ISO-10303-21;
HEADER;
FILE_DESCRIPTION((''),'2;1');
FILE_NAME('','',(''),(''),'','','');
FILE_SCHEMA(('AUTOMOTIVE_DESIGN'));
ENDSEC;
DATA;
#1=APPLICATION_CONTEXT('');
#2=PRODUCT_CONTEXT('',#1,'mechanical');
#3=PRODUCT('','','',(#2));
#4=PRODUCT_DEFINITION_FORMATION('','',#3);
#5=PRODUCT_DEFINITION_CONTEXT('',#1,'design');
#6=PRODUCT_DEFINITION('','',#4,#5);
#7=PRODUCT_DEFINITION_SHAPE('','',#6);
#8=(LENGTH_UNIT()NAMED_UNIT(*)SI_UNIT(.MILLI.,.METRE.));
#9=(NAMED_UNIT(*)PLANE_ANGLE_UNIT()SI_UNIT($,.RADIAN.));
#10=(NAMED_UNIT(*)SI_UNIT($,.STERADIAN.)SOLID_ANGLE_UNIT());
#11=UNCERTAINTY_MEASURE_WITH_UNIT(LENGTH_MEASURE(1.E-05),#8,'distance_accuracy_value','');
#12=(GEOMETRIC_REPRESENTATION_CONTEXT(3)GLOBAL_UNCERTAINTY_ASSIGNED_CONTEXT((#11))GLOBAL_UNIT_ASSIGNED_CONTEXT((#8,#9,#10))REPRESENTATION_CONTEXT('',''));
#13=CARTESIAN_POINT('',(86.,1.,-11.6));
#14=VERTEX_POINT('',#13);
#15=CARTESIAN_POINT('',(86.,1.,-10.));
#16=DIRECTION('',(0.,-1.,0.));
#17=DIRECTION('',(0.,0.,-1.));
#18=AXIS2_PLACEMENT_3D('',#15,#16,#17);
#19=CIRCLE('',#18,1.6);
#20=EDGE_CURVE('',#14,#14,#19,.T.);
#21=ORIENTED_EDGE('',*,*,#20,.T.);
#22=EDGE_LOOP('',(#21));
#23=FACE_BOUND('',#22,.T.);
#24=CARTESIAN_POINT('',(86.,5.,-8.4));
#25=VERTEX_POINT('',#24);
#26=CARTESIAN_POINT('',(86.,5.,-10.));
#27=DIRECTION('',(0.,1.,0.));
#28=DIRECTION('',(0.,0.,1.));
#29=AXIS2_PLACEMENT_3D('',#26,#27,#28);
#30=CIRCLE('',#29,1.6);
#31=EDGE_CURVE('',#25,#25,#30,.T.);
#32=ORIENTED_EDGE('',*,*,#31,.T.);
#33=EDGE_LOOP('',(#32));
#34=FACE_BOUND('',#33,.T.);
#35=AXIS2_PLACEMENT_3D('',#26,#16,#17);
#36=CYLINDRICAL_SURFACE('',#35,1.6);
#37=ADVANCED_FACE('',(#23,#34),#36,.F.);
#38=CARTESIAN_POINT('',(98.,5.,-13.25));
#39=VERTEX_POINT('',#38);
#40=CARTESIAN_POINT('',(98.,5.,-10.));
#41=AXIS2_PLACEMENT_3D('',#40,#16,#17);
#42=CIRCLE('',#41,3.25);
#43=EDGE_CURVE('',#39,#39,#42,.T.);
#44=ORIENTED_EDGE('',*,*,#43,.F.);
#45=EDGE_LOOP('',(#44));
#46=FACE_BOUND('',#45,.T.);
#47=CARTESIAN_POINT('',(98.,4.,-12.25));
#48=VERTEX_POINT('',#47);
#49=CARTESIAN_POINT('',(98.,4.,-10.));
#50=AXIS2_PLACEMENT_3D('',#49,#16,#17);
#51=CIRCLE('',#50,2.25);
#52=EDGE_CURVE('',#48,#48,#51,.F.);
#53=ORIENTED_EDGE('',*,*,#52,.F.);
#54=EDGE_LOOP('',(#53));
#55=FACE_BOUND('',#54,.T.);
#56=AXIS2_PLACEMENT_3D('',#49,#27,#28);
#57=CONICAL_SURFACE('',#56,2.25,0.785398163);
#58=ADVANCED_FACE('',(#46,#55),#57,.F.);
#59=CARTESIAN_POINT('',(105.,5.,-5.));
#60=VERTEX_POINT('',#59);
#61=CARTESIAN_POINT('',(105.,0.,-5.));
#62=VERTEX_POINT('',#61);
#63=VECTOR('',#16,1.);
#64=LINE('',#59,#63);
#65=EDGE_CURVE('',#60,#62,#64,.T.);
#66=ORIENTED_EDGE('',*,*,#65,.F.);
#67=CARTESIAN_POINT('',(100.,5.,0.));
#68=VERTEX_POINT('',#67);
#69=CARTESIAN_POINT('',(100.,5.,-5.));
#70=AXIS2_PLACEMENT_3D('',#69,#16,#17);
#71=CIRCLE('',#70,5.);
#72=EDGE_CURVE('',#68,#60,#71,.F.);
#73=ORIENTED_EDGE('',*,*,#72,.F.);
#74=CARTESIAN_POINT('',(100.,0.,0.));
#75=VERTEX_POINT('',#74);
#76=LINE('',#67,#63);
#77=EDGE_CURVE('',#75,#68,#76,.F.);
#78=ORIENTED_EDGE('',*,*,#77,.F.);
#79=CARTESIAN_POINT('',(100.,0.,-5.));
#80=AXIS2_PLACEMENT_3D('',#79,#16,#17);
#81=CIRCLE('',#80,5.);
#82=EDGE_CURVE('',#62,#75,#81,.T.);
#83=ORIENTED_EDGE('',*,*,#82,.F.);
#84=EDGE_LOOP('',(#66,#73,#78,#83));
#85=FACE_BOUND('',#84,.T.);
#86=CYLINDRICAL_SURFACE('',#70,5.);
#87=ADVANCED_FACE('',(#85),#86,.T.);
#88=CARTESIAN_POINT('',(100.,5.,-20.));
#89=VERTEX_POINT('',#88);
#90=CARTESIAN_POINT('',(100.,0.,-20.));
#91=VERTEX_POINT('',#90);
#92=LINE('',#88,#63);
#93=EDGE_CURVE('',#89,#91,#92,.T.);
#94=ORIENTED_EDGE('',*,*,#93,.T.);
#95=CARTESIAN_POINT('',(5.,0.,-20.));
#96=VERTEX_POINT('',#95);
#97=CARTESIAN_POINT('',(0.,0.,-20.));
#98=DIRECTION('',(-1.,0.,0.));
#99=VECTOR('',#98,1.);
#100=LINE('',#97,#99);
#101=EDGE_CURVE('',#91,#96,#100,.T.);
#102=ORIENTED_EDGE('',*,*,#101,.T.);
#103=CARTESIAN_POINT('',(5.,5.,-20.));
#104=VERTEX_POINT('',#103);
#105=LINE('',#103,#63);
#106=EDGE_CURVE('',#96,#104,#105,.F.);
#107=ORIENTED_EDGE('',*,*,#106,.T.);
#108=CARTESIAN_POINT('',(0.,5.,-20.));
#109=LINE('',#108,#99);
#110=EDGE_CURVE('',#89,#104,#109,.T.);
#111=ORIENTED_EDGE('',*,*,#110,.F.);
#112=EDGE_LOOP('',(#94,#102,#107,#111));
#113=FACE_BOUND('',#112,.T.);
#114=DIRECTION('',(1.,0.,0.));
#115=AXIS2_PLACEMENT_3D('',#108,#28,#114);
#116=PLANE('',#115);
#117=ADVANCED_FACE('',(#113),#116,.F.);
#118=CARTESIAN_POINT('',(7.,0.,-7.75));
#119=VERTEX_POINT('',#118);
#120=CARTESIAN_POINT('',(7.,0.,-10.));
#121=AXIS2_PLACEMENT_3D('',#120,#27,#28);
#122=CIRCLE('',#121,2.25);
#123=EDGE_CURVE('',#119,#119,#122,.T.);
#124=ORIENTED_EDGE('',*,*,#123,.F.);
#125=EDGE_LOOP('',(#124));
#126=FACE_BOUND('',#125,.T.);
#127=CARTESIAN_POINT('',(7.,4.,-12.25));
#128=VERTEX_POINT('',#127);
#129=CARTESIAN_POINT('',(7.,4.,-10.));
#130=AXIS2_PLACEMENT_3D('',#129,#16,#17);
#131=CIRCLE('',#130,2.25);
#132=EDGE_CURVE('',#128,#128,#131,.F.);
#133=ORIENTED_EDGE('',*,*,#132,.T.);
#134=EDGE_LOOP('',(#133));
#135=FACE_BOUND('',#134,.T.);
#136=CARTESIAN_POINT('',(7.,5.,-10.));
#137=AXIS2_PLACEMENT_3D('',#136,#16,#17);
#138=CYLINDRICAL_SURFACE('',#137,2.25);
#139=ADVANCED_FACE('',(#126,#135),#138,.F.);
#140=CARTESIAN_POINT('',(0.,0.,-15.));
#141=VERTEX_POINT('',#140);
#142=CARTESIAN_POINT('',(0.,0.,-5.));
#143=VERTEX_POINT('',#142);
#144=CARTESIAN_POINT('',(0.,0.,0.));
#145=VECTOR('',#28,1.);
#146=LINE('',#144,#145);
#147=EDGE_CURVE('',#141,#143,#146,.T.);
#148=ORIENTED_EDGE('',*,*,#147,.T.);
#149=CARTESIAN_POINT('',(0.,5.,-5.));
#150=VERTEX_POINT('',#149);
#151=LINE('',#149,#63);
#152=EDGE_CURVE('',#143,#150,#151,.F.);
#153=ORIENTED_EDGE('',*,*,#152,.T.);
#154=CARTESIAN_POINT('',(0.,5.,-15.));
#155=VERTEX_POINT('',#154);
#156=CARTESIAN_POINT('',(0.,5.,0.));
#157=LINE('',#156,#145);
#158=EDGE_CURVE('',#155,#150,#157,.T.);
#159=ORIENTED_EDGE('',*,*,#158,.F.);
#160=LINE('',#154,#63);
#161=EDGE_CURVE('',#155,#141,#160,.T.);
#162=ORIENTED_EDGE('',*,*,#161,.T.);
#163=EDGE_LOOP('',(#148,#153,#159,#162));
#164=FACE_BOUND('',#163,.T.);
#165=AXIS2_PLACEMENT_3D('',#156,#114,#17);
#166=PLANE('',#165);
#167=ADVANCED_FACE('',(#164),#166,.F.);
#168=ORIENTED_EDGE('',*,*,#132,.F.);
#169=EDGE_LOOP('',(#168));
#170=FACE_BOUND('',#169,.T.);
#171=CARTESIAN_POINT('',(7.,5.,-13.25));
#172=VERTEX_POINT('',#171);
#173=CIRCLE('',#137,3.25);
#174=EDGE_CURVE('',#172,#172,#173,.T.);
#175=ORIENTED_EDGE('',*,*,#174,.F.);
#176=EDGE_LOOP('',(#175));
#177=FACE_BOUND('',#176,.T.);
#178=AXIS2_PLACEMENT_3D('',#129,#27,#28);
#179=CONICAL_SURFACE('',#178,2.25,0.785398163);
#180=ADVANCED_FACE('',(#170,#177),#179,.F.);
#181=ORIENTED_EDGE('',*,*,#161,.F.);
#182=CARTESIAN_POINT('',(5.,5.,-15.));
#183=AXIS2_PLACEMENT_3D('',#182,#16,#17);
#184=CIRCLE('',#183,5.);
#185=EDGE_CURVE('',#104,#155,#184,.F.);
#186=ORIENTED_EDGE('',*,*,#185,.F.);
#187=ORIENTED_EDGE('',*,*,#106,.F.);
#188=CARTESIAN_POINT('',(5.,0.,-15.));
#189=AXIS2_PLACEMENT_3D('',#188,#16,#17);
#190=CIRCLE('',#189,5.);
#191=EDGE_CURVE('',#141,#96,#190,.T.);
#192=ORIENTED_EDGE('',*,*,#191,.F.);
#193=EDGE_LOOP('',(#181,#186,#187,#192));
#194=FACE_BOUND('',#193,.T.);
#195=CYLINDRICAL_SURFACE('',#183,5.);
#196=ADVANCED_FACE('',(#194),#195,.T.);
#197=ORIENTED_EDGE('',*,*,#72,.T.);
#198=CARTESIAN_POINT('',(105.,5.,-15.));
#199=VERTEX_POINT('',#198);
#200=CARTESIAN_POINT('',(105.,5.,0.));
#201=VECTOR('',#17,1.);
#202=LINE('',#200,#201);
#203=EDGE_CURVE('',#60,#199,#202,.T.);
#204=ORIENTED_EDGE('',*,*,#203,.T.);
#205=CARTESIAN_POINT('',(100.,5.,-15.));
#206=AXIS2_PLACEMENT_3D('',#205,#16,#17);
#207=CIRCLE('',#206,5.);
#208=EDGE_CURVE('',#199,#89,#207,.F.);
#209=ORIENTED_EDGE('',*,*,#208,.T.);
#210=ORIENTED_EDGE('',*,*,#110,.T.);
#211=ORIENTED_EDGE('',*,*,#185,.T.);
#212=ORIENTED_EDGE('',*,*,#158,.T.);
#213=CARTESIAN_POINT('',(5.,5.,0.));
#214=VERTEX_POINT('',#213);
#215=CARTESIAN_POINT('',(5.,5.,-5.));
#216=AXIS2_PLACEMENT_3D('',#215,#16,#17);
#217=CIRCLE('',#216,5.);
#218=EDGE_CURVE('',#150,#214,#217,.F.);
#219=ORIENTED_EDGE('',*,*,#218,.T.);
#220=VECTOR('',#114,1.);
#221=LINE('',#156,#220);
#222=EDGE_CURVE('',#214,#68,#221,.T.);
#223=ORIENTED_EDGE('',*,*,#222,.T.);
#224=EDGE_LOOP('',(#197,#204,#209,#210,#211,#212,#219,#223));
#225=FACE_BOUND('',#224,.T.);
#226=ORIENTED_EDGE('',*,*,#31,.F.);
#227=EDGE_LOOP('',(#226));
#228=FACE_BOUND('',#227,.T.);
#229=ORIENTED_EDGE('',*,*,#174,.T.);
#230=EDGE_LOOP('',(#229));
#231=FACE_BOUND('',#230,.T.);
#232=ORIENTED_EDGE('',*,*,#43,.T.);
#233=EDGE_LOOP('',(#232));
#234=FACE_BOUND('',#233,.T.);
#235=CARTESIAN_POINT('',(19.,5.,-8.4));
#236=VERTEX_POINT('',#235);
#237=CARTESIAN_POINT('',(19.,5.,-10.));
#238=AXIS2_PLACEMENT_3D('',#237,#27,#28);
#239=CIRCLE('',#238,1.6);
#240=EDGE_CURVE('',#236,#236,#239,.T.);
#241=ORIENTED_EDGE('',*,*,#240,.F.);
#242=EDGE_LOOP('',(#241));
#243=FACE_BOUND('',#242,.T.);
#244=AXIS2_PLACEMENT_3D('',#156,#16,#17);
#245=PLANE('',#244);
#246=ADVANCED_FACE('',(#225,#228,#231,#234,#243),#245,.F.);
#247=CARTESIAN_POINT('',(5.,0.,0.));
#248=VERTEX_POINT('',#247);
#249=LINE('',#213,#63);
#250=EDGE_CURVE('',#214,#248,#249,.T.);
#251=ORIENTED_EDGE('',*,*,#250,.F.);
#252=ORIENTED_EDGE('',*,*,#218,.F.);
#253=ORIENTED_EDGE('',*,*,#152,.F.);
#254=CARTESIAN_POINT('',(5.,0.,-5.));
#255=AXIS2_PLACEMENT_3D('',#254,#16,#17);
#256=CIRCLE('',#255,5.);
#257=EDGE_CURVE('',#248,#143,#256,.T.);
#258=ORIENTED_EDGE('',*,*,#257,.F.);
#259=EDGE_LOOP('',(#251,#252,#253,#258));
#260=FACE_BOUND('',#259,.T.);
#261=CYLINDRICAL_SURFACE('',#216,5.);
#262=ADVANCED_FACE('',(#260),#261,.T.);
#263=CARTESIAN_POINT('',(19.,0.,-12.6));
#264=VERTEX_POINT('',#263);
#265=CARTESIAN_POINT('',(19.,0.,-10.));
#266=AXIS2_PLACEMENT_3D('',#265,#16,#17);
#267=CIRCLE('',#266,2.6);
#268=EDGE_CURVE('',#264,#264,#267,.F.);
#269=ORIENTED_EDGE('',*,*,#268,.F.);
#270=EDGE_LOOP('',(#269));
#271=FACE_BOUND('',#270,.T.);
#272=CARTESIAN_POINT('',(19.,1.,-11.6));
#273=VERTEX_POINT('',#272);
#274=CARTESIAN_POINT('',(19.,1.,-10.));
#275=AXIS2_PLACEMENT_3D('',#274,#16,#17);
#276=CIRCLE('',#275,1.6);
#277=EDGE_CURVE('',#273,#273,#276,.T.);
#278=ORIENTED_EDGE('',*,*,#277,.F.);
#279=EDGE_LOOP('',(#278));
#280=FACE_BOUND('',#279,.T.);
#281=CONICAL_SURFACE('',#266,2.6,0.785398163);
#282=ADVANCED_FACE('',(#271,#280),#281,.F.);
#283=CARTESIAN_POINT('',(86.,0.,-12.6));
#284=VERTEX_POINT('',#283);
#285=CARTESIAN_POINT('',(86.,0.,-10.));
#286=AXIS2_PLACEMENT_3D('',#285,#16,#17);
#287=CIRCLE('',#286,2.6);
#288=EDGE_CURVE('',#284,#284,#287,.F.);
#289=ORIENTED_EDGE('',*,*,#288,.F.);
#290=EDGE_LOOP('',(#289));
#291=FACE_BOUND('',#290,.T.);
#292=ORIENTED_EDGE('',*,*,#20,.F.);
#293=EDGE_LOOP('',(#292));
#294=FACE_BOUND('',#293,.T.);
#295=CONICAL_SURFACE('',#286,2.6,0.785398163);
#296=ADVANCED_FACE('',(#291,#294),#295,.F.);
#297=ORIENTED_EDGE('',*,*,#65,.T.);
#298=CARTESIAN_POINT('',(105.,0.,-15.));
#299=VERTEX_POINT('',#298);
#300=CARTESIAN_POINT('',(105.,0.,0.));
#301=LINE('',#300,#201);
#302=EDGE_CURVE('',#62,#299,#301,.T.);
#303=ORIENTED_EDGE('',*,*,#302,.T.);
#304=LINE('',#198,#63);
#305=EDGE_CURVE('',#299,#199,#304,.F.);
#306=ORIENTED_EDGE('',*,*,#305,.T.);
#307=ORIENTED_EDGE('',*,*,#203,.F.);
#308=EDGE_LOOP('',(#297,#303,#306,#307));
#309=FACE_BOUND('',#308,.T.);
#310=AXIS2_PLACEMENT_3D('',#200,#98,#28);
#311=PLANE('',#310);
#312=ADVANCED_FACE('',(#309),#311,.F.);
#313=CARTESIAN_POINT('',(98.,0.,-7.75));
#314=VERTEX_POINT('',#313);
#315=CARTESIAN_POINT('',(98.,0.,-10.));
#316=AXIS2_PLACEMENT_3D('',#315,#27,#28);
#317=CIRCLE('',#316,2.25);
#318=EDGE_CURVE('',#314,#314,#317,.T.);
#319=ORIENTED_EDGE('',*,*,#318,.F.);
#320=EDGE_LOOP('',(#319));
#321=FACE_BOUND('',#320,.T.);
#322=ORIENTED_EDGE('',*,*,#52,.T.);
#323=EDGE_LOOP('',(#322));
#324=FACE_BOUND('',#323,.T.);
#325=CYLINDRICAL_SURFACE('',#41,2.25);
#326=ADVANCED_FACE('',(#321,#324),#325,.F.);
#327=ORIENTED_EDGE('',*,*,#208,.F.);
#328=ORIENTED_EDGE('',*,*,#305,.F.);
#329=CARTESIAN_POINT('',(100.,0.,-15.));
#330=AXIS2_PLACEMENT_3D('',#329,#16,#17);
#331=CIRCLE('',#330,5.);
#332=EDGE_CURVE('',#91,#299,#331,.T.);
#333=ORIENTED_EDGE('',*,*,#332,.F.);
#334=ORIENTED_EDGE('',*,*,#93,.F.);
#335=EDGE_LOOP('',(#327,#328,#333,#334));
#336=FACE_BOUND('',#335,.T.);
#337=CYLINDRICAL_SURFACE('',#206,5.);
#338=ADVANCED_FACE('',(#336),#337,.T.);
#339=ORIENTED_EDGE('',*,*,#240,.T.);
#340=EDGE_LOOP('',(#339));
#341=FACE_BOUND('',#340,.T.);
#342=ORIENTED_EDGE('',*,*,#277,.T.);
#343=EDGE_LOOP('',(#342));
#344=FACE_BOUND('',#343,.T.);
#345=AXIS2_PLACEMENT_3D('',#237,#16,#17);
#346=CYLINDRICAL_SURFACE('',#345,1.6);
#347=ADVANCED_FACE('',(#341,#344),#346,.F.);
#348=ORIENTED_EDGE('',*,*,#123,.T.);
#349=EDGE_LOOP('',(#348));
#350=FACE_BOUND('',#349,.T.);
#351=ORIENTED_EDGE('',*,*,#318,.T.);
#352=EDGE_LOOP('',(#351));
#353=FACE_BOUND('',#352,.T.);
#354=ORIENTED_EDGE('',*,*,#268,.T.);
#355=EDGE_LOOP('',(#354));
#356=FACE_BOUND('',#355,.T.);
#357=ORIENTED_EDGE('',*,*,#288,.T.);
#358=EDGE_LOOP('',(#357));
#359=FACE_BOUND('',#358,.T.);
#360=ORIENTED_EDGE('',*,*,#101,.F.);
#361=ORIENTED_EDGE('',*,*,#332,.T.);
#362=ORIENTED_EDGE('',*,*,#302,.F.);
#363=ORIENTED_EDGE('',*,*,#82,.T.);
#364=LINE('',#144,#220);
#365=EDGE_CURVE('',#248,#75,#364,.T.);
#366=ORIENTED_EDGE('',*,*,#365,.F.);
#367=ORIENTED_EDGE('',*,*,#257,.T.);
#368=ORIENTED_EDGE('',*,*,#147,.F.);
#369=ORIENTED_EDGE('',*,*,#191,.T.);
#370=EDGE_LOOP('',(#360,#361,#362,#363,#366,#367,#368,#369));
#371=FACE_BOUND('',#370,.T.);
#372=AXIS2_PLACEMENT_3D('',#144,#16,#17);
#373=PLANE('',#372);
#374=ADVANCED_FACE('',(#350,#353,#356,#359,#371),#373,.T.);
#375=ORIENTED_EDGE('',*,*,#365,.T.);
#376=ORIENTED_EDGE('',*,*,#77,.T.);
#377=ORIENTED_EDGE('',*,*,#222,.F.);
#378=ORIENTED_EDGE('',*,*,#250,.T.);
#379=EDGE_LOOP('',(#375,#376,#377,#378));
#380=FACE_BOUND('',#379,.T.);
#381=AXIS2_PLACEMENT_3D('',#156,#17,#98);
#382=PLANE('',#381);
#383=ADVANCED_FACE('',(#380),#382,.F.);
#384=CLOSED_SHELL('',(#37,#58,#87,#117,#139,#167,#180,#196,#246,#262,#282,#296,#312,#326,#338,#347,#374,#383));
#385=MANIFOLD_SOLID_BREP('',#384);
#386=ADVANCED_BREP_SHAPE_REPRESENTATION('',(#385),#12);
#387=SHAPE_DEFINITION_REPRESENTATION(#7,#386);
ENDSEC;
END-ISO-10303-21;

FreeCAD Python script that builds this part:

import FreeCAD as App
import Part
import Sketcher
Q = App.Units.Quantity


def edges_at(feature, points):
    """Names of the edges that pass closest to the given points."""
    edges = feature.Shape.Edges
    near = lambda p: min(range(len(edges)), key=lambda i: edges[i].distToShape(Part.Vertex(*p))[0])
    return sorted({f"Edge{near(p) + 1}" for p in points})


def add_polygon(sketch, points):
    """Adds a closed chain of lines whose ends are joined by coincident constraints."""
    first, n = sketch.GeometryCount, len(points)
    for a, b in zip(points, points[1:] + points[:1]):
        sketch.addGeometry(Part.LineSegment(App.Vector(*a, 0), App.Vector(*b, 0)), False)
    for i in range(n):
        sketch.addConstraint(Sketcher.Constraint("Coincident", first + i, 2, first + (i + 1) % n, 1))

doc = App.newDocument("Part")
body = doc.addObject("PartDesign::Body", "Body")

sketch1 = body.newObject("Sketcher::SketchObject", "Sketch")
sketch1.AttachmentSupport = (doc.getObject("XZ_Plane"), [""])
sketch1.MapMode = "FlatFace"
add_polygon(sketch1, [(0, -20), (0, 0), (105, 0), (105, -20)])
sketch1.addGeometry(Part.Circle(App.Vector(7, -10, 0), App.Vector(0, 0, 1), 2.2), False)
sketch1.addGeometry(Part.Circle(App.Vector(19, -10, 0), App.Vector(0, 0, 1), 1.6), False)
sketch1.addGeometry(Part.Circle(App.Vector(86, -10, 0), App.Vector(0, 0, 1), 1.6), False)
sketch1.addGeometry(Part.Circle(App.Vector(98, -10, 0), App.Vector(0, 0, 1), 2.2), False)
sketch1.addConstraint([
    Sketcher.Constraint("Vertical", 0),
    Sketcher.Constraint("Horizontal", 1),
    Sketcher.Constraint("Vertical", 2),
    Sketcher.Constraint("Horizontal", 3),
    Sketcher.Constraint("Coincident", 0, 2, -1, 1),
    Sketcher.Constraint("Equal", 5, 6),
    Sketcher.Constraint("Equal", 4, 7),
    Sketcher.Constraint("Horizontal", 4, 3, 5, 3),
    Sketcher.Constraint("Horizontal", 5, 3, 6, 3),
    Sketcher.Constraint("Horizontal", 6, 3, 7, 3),
    Sketcher.Constraint("Diameter", 4, Q("4.5 mm")),
    Sketcher.Constraint("Diameter", 5, Q("3.2 mm")),
    Sketcher.Constraint("DistanceX", 1, 1, 1, 2, Q("105 mm")),
    Sketcher.Constraint("DistanceY", 0, 1, 0, 2, Q("20 mm")),
    Sketcher.Constraint("DistanceX", -1, 1, 4, 3, Q("7 mm")),
    Sketcher.Constraint("DistanceY", 4, 3, -1, 1, Q("10 mm")),
    Sketcher.Constraint("DistanceX", -1, 1, 5, 3, Q("19 mm")),
    Sketcher.Constraint("DistanceX", -1, 1, 6, 3, Q("86 mm")),
    Sketcher.Constraint("DistanceX", -1, 1, 7, 3, Q("98 mm")),
])
pad1 = body.newObject("PartDesign::Pad", "Pad")
pad1.Profile = sketch1
pad1.Length = 5
pad1.Reversed = True
doc.recompute()

fillet = body.newObject("PartDesign::Fillet", "Fillet")
fillet.Base = (pad1, edges_at(pad1, [
    (0, 2.5, -20),
    (105, 2.5, -20),
    (105, 2.5, 0),
    (0, 2.5, 0),
]))
fillet.Radius = 5
doc.recompute()

chamfer = body.newObject("PartDesign::Chamfer", "Chamfer")
chamfer.Base = (fillet, edges_at(fillet, [(4.75, 5, -10), (95.75, 5, -10)]))
chamfer.Size = 1
doc.recompute()

chamfer2 = body.newObject("PartDesign::Chamfer", "Chamfer001")
chamfer2.Base = (chamfer, edges_at(chamfer, [(17.4, 0, -10), (84.4, 0, -10)]))
chamfer2.Size = 1

doc.recompute()
